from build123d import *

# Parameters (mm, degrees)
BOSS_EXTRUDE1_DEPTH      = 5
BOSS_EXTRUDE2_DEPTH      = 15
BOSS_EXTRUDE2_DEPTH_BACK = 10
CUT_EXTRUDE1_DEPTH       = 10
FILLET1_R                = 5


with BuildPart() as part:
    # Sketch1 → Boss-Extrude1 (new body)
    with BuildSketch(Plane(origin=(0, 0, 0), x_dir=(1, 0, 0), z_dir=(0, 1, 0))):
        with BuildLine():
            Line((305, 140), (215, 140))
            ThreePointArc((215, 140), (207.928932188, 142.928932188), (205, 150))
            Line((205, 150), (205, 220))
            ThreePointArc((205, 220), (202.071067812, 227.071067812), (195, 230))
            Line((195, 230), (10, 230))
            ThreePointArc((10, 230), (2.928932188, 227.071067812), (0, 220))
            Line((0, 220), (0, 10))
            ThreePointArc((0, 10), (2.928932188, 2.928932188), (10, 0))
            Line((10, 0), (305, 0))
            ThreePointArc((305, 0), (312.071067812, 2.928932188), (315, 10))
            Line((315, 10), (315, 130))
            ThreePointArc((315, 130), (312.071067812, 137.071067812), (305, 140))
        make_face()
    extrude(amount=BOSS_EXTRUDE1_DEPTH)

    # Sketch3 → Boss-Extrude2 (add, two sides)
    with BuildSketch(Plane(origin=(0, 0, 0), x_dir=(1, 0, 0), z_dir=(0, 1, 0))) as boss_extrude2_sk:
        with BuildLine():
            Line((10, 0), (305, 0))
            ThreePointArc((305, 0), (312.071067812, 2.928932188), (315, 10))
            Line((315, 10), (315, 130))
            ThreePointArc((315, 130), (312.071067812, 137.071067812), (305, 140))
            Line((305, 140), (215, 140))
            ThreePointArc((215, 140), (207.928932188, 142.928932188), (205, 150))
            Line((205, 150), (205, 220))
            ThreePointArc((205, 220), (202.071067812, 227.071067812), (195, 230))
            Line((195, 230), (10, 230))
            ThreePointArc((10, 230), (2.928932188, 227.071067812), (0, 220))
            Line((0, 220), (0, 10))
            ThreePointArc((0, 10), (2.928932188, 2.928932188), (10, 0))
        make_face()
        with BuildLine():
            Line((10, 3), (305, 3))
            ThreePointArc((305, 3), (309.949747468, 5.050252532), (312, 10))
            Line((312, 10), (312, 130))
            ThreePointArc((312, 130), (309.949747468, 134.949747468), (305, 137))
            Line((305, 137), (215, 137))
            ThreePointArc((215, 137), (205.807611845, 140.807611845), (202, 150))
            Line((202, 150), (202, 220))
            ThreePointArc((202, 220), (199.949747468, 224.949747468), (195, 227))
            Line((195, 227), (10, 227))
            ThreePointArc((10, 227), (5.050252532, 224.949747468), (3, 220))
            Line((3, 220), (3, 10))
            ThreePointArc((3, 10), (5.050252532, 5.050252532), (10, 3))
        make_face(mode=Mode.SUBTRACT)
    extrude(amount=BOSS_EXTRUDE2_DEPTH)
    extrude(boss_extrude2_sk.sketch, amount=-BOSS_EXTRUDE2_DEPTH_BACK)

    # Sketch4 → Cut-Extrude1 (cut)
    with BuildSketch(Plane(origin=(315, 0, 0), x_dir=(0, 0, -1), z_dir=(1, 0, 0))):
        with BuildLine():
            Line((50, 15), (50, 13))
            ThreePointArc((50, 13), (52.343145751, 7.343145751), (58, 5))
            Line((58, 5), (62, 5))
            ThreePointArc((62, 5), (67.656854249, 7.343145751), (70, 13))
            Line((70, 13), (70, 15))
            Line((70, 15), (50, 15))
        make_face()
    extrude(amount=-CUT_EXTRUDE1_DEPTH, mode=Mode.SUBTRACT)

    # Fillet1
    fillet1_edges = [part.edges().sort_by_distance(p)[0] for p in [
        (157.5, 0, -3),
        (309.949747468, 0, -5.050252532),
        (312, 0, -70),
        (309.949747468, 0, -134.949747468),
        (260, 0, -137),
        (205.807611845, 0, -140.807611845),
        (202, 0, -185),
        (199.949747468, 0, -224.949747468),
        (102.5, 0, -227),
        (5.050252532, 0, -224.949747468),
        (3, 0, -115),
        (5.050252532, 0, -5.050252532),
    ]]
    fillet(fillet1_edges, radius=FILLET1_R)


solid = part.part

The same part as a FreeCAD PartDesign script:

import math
import FreeCAD as App
import Part
import Sketcher


def edges_at(feature, points):
    """Names of the edges that pass closest to the given points."""
    edges = feature.Shape.Edges
    near = lambda p: min(range(len(edges)), key=lambda i: edges[i].distToShape(Part.Vertex(*p))[0])
    return sorted({f"Edge{near(p) + 1}" for p in points})

doc = App.newDocument("Part")
body = doc.addObject("PartDesign::Body", "Body")

sketch1 = body.newObject("Sketcher::SketchObject", "Sketch")
sketch1.AttachmentSupport = (doc.getObject("XZ_Plane"), [""])
sketch1.MapMode = "FlatFace"
sketch1.addGeometry([
    Part.LineSegment(App.Vector(305, -140, 0), App.Vector(215, -140, 0)),
    Part.ArcOfCircle(Part.Circle(App.Vector(215, -150, 0), App.Vector(0, 0, 1), 10), math.radians(90), math.radians(180)),
    Part.LineSegment(App.Vector(205, -150, 0), App.Vector(205, -220, 0)),
    Part.ArcOfCircle(Part.Circle(App.Vector(195, -220, 0), App.Vector(0, 0, 1), 10), math.radians(-90), math.radians(0)),
    Part.LineSegment(App.Vector(195, -230, 0), App.Vector(10, -230, 0)),
    Part.ArcOfCircle(Part.Circle(App.Vector(10, -220, 0), App.Vector(0, 0, 1), 10), math.radians(180), math.radians(270)),
    Part.LineSegment(App.Vector(0, -220, 0), App.Vector(0, -10, 0)),
    Part.ArcOfCircle(Part.Circle(App.Vector(10, -10, 0), App.Vector(0, 0, 1), 10), math.radians(90), math.radians(180)),
    Part.LineSegment(App.Vector(10, 0, 0), App.Vector(305, 0, 0)),
    Part.ArcOfCircle(Part.Circle(App.Vector(305, -10, 0), App.Vector(0, 0, 1), 10), math.radians(0), math.radians(90)),
    Part.LineSegment(App.Vector(315, -10, 0), App.Vector(315, -130, 0)),
    Part.ArcOfCircle(Part.Circle(App.Vector(305, -130, 0), App.Vector(0, 0, 1), 10), math.radians(-90), math.radians(0)),
], False)
sketch1.addConstraint([
    Sketcher.Constraint("Tangent", 0, 2, 1, 1),
    Sketcher.Constraint("Tangent", 1, 2, 2, 1),
    Sketcher.Constraint("Tangent", 2, 2, 3, 2),
    Sketcher.Constraint("Tangent", 3, 1, 4, 1),
    Sketcher.Constraint("Tangent", 4, 2, 5, 2),
    Sketcher.Constraint("Tangent", 5, 1, 6, 1),
    Sketcher.Constraint("Tangent", 6, 2, 7, 2),
    Sketcher.Constraint("Tangent", 7, 1, 8, 1),
    Sketcher.Constraint("Tangent", 8, 2, 9, 2),
    Sketcher.Constraint("Tangent", 9, 1, 10, 1),
    Sketcher.Constraint("Tangent", 10, 2, 11, 2),
    Sketcher.Constraint("Tangent", 11, 1, 0, 1),
    Sketcher.Constraint("Horizontal", 0),
    Sketcher.Constraint("Vertical", 2),
    Sketcher.Constraint("Horizontal", 4),
    Sketcher.Constraint("Vertical", 6),
    Sketcher.Constraint("Horizontal", 8),
    Sketcher.Constraint("Vertical", 10),
    Sketcher.Constraint("Equal", 1, 3),
    Sketcher.Constraint("Equal", 3, 5),
    Sketcher.Constraint("Equal", 5, 7),
    Sketcher.Constraint("Equal", 7, 9),
    Sketcher.Constraint("Equal", 9, 11),
    Sketcher.Constraint("PointOnObject", 5, 1, -2),
    Sketcher.Constraint("PointOnObject", 7, 1, -1),
    Sketcher.Constraint("Radius", 1, 10.0),
    Sketcher.Constraint("DistanceX", 0, 2, 0, 1, 90.0),
    Sketcher.Constraint("DistanceX", 4, 2, 4, 1, 185.0),
    Sketcher.Constraint("DistanceY", 2, 2, 2, 1, 70.0),
    Sketcher.Constraint("DistanceY", 6, 1, 6, 2, 210.0),
])
pad1 = body.newObject("PartDesign::Pad", "Pad")
pad1.Profile = sketch1
pad1.Length = 5
pad1.Reversed = True

sketch2 = body.newObject("Sketcher::SketchObject", "Sketch001")
sketch2.AttachmentSupport = (doc.getObject("XZ_Plane"), [""])
sketch2.MapMode = "FlatFace"
sketch2.addGeometry([
    Part.LineSegment(App.Vector(10, 0, 0), App.Vector(305, 0, 0)),
    Part.ArcOfCircle(Part.Circle(App.Vector(305, -10, 0), App.Vector(0, 0, 1), 10), math.radians(0), math.radians(90)),
    Part.LineSegment(App.Vector(315, -10, 0), App.Vector(315, -130, 0)),
    Part.ArcOfCircle(Part.Circle(App.Vector(305, -130, 0), App.Vector(0, 0, 1), 10), math.radians(-90), math.radians(0)),
    Part.LineSegment(App.Vector(305, -140, 0), App.Vector(215, -140, 0)),
    Part.ArcOfCircle(Part.Circle(App.Vector(215, -150, 0), App.Vector(0, 0, 1), 10), math.radians(90), math.radians(180)),
    Part.LineSegment(App.Vector(205, -150, 0), App.Vector(205, -220, 0)),
    Part.ArcOfCircle(Part.Circle(App.Vector(195, -220, 0), App.Vector(0, 0, 1), 10), math.radians(-90), math.radians(0)),
    Part.LineSegment(App.Vector(195, -230, 0), App.Vector(10, -230, 0)),
    Part.ArcOfCircle(Part.Circle(App.Vector(10, -220, 0), App.Vector(0, 0, 1), 10), math.radians(180), math.radians(270)),
    Part.LineSegment(App.Vector(0, -220, 0), App.Vector(0, -10, 0)),
    Part.ArcOfCircle(Part.Circle(App.Vector(10, -10, 0), App.Vector(0, 0, 1), 10), math.radians(90), math.radians(180)),
    Part.LineSegment(App.Vector(305, -3, 0), App.Vector(10, -3, 0)),
    Part.ArcOfCircle(Part.Circle(App.Vector(10, -10, 0), App.Vector(0, 0, 1), 7), math.radians(90), math.radians(180)),
    Part.LineSegment(App.Vector(3, -10, 0), App.Vector(3, -220, 0)),
    Part.ArcOfCircle(Part.Circle(App.Vector(10, -220, 0), App.Vector(0, 0, 1), 7), math.radians(-180), math.radians(-90)),
    Part.LineSegment(App.Vector(10, -227, 0), App.Vector(195, -227, 0)),
    Part.ArcOfCircle(Part.Circle(App.Vector(195, -220, 0), App.Vector(0, 0, 1), 7), math.radians(-90), math.radians(0)),
    Part.LineSegment(App.Vector(202, -220, 0), App.Vector(202, -150, 0)),
    Part.ArcOfCircle(Part.Circle(App.Vector(215, -150, 0), App.Vector(0, 0, 1), 13), math.radians(90), math.radians(180)),
    Part.LineSegment(App.Vector(215, -137, 0), App.Vector(305, -137, 0)),
    Part.ArcOfCircle(Part.Circle(App.Vector(305, -130, 0), App.Vector(0, 0, 1), 7), math.radians(-90), math.radians(0)),
    Part.LineSegment(App.Vector(312, -130, 0), App.Vector(312, -10, 0)),
    Part.ArcOfCircle(Part.Circle(App.Vector(305, -10, 0), App.Vector(0, 0, 1), 7), math.radians(0), math.radians(90)),
], False)
sketch2.addConstraint([
    Sketcher.Constraint("Tangent", 0, 2, 1, 2),
    Sketcher.Constraint("Tangent", 1, 1, 2, 1),
    Sketcher.Constraint("Tangent", 2, 2, 3, 2),
    Sketcher.Constraint("Tangent", 3, 1, 4, 1),
    Sketcher.Constraint("Tangent", 4, 2, 5, 1),
    Sketcher.Constraint("Tangent", 5, 2, 6, 1),
    Sketcher.Constraint("Tangent", 6, 2, 7, 2),
    Sketcher.Constraint("Tangent", 7, 1, 8, 1),
    Sketcher.Constraint("Tangent", 8, 2, 9, 2),
    Sketcher.Constraint("Tangent", 9, 1, 10, 1),
    Sketcher.Constraint("Tangent", 10, 2, 11, 2),
    Sketcher.Constraint("Tangent", 11, 1, 0, 1),
    Sketcher.Constraint("Tangent", 12, 2, 13, 1),
    Sketcher.Constraint("Tangent", 13, 2, 14, 1),
    Sketcher.Constraint("Tangent", 14, 2, 15, 1),
    Sketcher.Constraint("Tangent", 15, 2, 16, 1),
    Sketcher.Constraint("Tangent", 16, 2, 17, 1),
    Sketcher.Constraint("Tangent", 17, 2, 18, 1),
    Sketcher.Constraint("Tangent", 18, 2, 19, 2),
    Sketcher.Constraint("Tangent", 19, 1, 20, 1),
    Sketcher.Constraint("Tangent", 20, 2, 21, 1),
    Sketcher.Constraint("Tangent", 21, 2, 22, 1),
    Sketcher.Constraint("Tangent", 22, 2, 23, 1),
    Sketcher.Constraint("Tangent", 23, 2, 12, 1),
    Sketcher.Constraint("Horizontal", 0),
    Sketcher.Constraint("Vertical", 2),
    Sketcher.Constraint("Horizontal", 4),
    Sketcher.Constraint("Vertical", 6),
    Sketcher.Constraint("Horizontal", 8),
    Sketcher.Constraint("Vertical", 10),
    Sketcher.Constraint("Horizontal", 12),
    Sketcher.Constraint("Vertical", 14),
    Sketcher.Constraint("Horizontal", 16),
    Sketcher.Constraint("Vertical", 18),
    Sketcher.Constraint("Horizontal", 20),
    Sketcher.Constraint("Vertical", 22),
    Sketcher.Constraint("Coincident", 13, 3, 11, 3),
    Sketcher.Constraint("Coincident", 15, 3, 9, 3),
    Sketcher.Constraint("Coincident", 17, 3, 7, 3),
    Sketcher.Constraint("Coincident", 19, 3, 5, 3),
    Sketcher.Constraint("Coincident", 21, 3, 3, 3),
    Sketcher.Constraint("Equal", 1, 3),
    Sketcher.Constraint("Equal", 3, 5),
    Sketcher.Constraint("Equal", 5, 7),
    Sketcher.Constraint("Equal", 7, 9),
    Sketcher.Constraint("Equal", 9, 11),
    Sketcher.Constraint("Equal", 21, 23),
    Sketcher.Constraint("PointOnObject", 0, 2, -1),
    Sketcher.Constraint("PointOnObject", 9, 1, -2),
    Sketcher.Constraint("Radius", 1, 10.0),
    Sketcher.Constraint("Radius", 13, 7.0),
    Sketcher.Constraint("DistanceX", 0, 1, 0, 2, 295.0),
    Sketcher.Constraint("DistanceX", 4, 2, 4, 1, 90.0),
    Sketcher.Constraint("DistanceY", 2, 2, 2, 1, 120.0),
    Sketcher.Constraint("DistanceY", 6, 2, 6, 1, 70.0),
])
pad2 = body.newObject("PartDesign::Pad", "Pad001")
pad2.Profile = sketch2
pad2.Type = "TwoLengths"
pad2.Length = 15
pad2.Length2 = 10
pad2.Reversed = True

sketch3 = body.newObject("Sketcher::SketchObject", "Sketch002")
sketch3.AttachmentSupport = (doc.getObject("YZ_Plane"), [""])
sketch3.MapMode = "FlatFace"
sketch3.AttachmentOffset = App.Placement(App.Vector(0, 0, 315), App.Rotation())
sketch3.addGeometry([
    Part.LineSegment(App.Vector(15, -50, 0), App.Vector(13, -50, 0)),
    Part.ArcOfCircle(Part.Circle(App.Vector(13, -58, 0), App.Vector(0, 0, 1), 8), math.radians(90), math.radians(180)),
    Part.LineSegment(App.Vector(5, -58, 0), App.Vector(5, -62, 0)),
    Part.ArcOfCircle(Part.Circle(App.Vector(13, -62, 0), App.Vector(0, 0, 1), 8), math.radians(-180), math.radians(-90)),
    Part.LineSegment(App.Vector(13, -70, 0), App.Vector(15, -70, 0)),
    Part.LineSegment(App.Vector(15, -70, 0), App.Vector(15, -50, 0)),
], False)
sketch3.addConstraint([
    Sketcher.Constraint("Tangent", 0, 2, 1, 1),
    Sketcher.Constraint("Tangent", 1, 2, 2, 1),
    Sketcher.Constraint("Tangent", 2, 2, 3, 1),
    Sketcher.Constraint("Tangent", 3, 2, 4, 1),
    Sketcher.Constraint("Coincident", 4, 2, 5, 1),
    Sketcher.Constraint("Coincident", 5, 2, 0, 1),
    Sketcher.Constraint("Horizontal", 0),
    Sketcher.Constraint("Vertical", 2),
    Sketcher.Constraint("Horizontal", 4),
    Sketcher.Constraint("Vertical", 5),
    Sketcher.Constraint("Equal", 1, 3),
    Sketcher.Constraint("Radius", 1, 8.0),
    Sketcher.Constraint("DistanceX", 0, 2, 0, 1, 2.0),
    Sketcher.Constraint("DistanceY", 2, 2, 2, 1, 4.0),
    Sketcher.Constraint("DistanceX", -1, 1, 1, 3, 13.0),
    Sketcher.Constraint("DistanceY", 1, 3, -1, 1, 58.0),
])
pocket1 = body.newObject("PartDesign::Pocket", "Pocket")
pocket1.Profile = sketch3
pocket1.Length = 10
doc.recompute()

fillet = body.newObject("PartDesign::Fillet", "Fillet")
fillet.Base = (pocket1, edges_at(pocket1, [
    (157.5, 0, -3),
    (309.95, 0, -5.05),
    (312, 0, -70),
    (309.95, 0, -134.95),
    (260, 0, -137),
    (205.808, 0, -140.808),
    (202, 0, -185),
    (199.95, 0, -224.95),
    (102.5, 0, -227),
    (5.05, 0, -224.95),
    (3, 0, -115),
    (5.05, 0, -5.05),
]))
fillet.Radius = 5

doc.recompute()
